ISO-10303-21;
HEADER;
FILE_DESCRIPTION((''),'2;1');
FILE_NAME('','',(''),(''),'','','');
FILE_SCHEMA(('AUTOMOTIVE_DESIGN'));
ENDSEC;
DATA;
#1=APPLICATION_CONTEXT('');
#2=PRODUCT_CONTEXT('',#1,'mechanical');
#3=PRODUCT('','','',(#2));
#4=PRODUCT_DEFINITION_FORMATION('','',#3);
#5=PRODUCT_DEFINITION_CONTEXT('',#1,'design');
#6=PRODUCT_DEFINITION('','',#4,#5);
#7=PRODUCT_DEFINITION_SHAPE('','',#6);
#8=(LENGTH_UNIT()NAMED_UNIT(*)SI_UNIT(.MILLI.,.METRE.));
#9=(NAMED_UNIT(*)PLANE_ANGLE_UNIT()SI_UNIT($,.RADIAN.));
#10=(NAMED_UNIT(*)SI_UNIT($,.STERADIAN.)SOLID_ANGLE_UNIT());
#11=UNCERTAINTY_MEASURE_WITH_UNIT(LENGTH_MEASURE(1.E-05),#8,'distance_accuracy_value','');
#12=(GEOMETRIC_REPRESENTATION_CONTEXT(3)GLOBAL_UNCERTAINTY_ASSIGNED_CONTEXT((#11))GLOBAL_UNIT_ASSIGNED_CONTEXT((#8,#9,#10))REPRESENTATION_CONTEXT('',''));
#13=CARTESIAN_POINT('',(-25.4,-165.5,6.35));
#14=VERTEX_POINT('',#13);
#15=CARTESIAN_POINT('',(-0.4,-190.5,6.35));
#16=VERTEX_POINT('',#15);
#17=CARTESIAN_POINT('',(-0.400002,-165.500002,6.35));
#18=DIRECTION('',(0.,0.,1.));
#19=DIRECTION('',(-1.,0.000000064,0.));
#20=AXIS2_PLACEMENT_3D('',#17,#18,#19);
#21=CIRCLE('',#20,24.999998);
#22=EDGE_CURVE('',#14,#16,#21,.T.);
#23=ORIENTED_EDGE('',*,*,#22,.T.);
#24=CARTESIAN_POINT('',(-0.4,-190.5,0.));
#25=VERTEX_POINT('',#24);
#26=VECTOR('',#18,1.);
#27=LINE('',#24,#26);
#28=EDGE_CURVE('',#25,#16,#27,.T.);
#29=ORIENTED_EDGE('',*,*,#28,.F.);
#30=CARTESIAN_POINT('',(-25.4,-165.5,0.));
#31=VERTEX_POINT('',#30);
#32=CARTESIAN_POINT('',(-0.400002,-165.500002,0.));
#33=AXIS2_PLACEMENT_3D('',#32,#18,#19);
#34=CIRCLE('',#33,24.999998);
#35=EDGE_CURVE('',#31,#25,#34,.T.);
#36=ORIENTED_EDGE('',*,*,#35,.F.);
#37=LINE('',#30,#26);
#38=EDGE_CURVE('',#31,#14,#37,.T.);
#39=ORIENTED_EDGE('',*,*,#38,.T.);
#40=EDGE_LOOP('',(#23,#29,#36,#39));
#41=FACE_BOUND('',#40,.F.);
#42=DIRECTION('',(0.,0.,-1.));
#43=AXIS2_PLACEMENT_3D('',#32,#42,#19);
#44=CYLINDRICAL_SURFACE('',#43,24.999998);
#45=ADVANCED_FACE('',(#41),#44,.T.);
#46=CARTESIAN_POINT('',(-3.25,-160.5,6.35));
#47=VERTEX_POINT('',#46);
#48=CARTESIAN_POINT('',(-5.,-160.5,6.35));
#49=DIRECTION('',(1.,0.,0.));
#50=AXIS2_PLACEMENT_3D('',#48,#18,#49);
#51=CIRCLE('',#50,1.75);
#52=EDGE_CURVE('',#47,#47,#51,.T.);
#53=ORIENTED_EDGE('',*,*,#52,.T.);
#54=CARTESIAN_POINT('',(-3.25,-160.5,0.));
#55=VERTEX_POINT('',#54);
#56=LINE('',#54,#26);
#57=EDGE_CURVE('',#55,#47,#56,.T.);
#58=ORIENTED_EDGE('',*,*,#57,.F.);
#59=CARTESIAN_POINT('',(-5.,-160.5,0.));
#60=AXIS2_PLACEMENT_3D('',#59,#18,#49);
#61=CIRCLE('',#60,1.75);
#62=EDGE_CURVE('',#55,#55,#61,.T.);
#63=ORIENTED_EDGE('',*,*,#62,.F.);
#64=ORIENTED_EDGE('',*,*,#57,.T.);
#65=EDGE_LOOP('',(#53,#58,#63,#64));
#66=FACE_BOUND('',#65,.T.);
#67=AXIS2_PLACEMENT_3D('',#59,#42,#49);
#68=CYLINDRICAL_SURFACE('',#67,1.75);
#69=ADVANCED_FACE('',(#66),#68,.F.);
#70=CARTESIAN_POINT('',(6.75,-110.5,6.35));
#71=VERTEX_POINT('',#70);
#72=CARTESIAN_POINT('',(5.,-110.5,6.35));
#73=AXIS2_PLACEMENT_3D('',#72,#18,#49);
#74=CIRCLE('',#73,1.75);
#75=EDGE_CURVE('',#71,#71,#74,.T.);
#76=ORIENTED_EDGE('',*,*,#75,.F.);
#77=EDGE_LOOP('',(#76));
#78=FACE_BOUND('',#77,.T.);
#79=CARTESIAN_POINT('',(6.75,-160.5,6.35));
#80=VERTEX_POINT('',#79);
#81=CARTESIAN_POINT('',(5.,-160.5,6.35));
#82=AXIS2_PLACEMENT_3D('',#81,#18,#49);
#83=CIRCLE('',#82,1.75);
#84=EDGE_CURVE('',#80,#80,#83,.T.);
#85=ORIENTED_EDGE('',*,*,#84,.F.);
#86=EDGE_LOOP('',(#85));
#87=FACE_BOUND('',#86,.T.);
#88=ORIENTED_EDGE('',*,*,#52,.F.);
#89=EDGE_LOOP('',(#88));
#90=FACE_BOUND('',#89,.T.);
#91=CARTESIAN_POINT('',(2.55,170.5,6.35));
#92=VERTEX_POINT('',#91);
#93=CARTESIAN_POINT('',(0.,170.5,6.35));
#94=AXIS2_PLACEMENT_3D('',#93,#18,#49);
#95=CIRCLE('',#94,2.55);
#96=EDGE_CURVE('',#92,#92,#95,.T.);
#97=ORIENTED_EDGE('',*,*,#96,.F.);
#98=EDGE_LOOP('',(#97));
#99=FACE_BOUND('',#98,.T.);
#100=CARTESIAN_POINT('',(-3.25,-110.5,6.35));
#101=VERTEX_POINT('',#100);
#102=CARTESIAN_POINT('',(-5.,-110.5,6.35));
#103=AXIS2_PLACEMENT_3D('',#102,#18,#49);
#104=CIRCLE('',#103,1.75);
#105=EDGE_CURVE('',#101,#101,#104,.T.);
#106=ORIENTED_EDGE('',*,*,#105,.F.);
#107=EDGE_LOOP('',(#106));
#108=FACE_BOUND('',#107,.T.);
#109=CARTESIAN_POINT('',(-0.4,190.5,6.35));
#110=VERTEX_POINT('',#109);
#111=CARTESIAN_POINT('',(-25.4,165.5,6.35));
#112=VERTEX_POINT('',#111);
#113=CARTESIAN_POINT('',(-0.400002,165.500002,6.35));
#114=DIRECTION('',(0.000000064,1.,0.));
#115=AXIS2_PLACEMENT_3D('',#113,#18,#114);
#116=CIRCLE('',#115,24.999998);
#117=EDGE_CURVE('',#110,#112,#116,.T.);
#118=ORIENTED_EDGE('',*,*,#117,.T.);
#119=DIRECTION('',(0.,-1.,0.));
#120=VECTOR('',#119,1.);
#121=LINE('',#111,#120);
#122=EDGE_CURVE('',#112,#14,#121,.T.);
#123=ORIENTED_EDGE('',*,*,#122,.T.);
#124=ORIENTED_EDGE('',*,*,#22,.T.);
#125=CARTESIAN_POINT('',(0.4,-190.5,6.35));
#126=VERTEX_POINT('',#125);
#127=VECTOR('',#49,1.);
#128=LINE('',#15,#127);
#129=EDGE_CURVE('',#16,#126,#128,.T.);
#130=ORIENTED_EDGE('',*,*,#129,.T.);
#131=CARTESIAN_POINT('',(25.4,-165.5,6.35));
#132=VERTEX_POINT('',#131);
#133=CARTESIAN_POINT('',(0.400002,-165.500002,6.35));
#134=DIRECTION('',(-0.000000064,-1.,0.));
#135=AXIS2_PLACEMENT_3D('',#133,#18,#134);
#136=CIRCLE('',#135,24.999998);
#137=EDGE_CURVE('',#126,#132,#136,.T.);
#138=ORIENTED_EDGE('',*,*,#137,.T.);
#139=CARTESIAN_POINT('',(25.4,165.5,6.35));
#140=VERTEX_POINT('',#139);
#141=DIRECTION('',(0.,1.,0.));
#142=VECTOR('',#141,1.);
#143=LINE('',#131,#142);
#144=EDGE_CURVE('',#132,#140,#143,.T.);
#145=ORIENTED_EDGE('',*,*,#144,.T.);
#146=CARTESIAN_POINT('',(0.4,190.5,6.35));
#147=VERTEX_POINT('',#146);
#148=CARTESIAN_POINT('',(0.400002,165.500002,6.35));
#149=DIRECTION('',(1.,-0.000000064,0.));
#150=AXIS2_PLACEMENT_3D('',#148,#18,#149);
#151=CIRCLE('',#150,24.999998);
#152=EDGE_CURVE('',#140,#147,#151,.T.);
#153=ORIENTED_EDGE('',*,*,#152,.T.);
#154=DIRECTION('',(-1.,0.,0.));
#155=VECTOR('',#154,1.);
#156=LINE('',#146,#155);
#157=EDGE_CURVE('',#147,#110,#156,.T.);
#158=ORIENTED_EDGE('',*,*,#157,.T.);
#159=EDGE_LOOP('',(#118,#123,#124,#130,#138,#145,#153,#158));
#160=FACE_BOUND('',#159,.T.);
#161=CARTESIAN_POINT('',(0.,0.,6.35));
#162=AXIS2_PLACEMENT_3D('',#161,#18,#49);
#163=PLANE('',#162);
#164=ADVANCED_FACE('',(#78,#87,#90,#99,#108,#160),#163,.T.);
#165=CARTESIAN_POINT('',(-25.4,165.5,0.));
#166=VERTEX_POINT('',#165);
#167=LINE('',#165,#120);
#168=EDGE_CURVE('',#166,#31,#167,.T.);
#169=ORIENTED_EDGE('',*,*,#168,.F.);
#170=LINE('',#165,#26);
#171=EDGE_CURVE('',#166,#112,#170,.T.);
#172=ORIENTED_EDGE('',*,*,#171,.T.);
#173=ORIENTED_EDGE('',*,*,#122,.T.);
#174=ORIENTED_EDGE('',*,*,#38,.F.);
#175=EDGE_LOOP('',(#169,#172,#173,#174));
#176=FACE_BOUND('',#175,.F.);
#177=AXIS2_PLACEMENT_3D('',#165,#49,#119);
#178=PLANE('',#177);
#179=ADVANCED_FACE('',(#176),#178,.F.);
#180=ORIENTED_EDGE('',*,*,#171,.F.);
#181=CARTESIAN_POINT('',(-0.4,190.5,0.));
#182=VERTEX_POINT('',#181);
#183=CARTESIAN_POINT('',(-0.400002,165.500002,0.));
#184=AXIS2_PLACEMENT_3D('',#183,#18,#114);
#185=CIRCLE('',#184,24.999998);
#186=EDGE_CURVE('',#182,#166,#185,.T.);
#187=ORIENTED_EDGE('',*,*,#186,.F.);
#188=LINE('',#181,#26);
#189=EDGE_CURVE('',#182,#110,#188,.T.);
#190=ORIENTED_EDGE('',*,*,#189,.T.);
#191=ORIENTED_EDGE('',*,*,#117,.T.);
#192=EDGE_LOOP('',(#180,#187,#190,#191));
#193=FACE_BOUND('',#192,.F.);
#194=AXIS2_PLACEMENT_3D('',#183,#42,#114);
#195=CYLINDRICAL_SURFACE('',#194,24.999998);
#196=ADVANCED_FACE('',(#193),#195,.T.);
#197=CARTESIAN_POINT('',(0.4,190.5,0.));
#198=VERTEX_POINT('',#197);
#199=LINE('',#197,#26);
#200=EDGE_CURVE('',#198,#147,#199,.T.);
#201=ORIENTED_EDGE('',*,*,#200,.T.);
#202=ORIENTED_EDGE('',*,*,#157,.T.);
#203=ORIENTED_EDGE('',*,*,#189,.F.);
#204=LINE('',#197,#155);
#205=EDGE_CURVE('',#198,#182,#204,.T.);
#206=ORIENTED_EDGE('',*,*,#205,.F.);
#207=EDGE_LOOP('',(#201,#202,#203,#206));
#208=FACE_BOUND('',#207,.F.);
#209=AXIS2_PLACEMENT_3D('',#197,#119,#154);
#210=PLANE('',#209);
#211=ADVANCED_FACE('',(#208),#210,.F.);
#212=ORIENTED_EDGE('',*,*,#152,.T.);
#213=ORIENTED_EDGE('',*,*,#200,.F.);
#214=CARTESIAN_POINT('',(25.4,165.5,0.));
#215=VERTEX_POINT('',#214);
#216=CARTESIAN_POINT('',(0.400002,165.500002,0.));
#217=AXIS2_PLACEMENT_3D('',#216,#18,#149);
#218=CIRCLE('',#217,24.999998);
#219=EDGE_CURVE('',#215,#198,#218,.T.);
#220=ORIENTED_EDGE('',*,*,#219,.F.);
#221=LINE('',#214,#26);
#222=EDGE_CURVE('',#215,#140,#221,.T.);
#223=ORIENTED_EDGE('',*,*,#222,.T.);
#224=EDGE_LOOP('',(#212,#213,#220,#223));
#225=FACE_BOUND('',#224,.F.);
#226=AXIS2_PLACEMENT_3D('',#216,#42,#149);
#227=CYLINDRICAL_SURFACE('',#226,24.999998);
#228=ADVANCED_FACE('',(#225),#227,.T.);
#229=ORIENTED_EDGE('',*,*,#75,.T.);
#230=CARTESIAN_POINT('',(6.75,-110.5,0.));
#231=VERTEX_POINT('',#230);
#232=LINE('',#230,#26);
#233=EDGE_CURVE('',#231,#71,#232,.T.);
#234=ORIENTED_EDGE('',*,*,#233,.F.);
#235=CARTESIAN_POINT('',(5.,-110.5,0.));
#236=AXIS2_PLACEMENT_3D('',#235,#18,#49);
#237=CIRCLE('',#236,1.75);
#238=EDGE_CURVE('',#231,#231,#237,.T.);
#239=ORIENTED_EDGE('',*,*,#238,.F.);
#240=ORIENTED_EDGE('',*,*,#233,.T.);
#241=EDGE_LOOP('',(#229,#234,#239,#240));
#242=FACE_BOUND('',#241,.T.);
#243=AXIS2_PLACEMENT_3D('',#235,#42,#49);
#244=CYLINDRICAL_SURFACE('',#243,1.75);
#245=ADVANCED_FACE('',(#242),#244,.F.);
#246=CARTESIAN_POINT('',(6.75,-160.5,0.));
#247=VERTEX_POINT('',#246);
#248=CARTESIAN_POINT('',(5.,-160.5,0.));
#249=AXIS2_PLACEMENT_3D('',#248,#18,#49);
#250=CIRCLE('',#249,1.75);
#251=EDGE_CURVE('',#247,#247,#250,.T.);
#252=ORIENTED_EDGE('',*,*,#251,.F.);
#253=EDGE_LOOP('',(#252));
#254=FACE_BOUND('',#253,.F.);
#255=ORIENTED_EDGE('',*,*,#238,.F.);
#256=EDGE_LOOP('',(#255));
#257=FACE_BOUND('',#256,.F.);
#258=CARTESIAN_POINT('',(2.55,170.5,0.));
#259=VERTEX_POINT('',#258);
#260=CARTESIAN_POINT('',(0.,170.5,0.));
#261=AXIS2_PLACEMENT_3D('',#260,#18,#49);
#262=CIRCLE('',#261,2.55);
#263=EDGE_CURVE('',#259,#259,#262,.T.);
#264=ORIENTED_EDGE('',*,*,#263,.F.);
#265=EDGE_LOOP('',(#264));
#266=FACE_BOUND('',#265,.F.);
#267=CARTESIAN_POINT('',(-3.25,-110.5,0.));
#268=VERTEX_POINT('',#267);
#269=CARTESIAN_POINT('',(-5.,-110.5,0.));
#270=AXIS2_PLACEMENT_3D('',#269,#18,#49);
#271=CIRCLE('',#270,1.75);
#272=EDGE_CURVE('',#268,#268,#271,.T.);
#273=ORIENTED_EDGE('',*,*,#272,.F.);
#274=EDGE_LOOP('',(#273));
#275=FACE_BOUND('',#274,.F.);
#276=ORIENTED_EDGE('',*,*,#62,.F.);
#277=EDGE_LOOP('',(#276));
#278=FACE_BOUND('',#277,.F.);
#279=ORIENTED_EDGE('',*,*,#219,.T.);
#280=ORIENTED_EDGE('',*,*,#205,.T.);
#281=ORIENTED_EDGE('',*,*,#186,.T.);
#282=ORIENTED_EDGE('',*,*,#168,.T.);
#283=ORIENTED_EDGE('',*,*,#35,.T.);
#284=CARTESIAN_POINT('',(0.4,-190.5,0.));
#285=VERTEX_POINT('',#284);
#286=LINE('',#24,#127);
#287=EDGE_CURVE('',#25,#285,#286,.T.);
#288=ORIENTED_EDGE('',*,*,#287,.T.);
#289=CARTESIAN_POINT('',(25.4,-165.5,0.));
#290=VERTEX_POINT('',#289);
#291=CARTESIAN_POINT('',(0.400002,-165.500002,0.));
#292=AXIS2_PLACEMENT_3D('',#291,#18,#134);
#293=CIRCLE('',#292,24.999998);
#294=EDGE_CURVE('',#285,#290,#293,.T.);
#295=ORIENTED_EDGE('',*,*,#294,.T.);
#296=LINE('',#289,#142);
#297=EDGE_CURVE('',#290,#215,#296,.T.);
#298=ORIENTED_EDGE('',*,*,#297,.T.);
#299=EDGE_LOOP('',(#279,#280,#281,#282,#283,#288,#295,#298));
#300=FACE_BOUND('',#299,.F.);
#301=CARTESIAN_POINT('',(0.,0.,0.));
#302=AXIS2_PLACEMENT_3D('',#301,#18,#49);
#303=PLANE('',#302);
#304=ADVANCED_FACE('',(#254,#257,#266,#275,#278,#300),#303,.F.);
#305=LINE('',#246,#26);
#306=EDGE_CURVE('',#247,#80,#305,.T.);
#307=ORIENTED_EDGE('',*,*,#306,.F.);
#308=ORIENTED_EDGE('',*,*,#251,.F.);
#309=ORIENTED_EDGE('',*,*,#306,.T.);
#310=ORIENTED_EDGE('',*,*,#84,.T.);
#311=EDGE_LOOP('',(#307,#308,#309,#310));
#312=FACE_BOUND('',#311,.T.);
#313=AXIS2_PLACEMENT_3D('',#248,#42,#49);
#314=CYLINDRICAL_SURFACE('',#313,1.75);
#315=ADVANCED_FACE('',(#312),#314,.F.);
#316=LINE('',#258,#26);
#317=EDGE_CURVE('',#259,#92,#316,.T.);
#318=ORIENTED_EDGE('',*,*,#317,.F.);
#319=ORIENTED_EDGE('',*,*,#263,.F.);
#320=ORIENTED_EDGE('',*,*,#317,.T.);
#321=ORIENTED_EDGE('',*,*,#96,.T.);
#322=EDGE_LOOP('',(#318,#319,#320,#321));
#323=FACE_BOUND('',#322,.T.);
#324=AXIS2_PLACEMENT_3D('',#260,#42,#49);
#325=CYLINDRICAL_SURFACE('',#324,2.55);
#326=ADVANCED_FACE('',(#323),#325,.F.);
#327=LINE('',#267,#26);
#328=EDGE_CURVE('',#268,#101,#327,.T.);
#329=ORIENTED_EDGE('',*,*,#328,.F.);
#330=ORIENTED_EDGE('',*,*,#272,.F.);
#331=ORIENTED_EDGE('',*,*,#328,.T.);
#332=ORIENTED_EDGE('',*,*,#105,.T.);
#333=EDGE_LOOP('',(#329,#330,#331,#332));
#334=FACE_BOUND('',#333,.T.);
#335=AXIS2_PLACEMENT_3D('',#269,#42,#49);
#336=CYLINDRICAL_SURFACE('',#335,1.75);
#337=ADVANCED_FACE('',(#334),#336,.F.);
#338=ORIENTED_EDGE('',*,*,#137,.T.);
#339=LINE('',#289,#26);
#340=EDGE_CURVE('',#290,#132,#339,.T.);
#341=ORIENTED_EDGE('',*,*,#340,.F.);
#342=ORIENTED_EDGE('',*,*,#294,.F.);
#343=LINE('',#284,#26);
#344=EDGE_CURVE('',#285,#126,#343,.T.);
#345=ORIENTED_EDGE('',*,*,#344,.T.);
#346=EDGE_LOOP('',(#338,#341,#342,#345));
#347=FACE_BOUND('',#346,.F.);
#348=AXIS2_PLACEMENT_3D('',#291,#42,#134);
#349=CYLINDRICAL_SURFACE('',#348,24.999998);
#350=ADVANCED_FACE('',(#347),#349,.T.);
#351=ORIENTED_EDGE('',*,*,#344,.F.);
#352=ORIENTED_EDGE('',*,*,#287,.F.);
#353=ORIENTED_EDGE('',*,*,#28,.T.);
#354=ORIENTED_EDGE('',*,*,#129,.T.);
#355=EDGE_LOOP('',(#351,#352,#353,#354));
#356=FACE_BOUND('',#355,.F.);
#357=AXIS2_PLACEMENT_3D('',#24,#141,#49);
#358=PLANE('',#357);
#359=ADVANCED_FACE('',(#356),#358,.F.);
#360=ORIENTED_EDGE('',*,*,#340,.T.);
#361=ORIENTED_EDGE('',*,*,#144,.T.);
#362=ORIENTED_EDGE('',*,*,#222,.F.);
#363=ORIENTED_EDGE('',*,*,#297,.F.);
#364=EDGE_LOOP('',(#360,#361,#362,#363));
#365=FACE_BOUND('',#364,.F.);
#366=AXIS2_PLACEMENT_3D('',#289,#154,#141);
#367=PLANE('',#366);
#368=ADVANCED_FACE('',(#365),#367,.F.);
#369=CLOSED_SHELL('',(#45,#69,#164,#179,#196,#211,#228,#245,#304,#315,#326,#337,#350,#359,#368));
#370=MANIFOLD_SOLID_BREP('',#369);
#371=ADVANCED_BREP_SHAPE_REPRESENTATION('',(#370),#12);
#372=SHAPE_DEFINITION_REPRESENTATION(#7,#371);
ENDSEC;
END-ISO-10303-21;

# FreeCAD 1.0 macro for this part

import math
import FreeCAD as App
import Part
import Sketcher

V = App.Vector

doc = App.newDocument("Part")
body = doc.addObject("PartDesign::Body", "Body")

# Sketch on XY plane
sketch1 = body.newObject("Sketcher::SketchObject", "Sketch")
sketch1.AttachmentSupport = (doc.getObject("XY_Plane"), [""])
sketch1.MapMode = "FlatFace"
sketch1.addGeometry(Part.ArcOfCircle(Part.Circle(V(0.4, 165.5, 0), V(0, 0, 1), 25), math.radians(0), math.radians(90)), False)
sketch1.addGeometry(Part.LineSegment(V(0.4, 190.5, 0), V(-0.4, 190.5, 0)), False)
sketch1.addGeometry(Part.ArcOfCircle(Part.Circle(V(-0.4, 165.5, 0), V(0, 0, 1), 25), math.radians(90), math.radians(180)), False)
sketch1.addGeometry(Part.LineSegment(V(-25.4, 165.5, 0), V(-25.4, -165.5, 0)), False)
sketch1.addGeometry(Part.ArcOfCircle(Part.Circle(V(-0.4, -165.5, 0), V(0, 0, 1), 25), math.radians(180), math.radians(270)), False)
sketch1.addGeometry(Part.LineSegment(V(-0.4, -190.5, 0), V(0.4, -190.5, 0)), False)
sketch1.addGeometry(Part.ArcOfCircle(Part.Circle(V(0.4, -165.5, 0), V(0, 0, 1), 25), math.radians(-90), math.radians(0)), False)
sketch1.addGeometry(Part.LineSegment(V(25.4, -165.5, 0), V(25.4, 165.5, 0)), False)
sketch1.addGeometry(Part.Circle(V(-5, -160.5, 0), V(0, 0, 1), 1.8), False)
sketch1.addGeometry(Part.Circle(V(-5, -110.5, 0), V(0, 0, 1), 1.8), False)
sketch1.addGeometry(Part.Circle(V(5, -160.5, 0), V(0, 0, 1), 1.8), False)
sketch1.addGeometry(Part.Circle(V(5, -110.5, 0), V(0, 0, 1), 1.8), False)
sketch1.addGeometry(Part.Circle(V(0, 170.5, 0), V(0, 0, 1), 2.5), False)
sketch1.addConstraint(Sketcher.Constraint("Tangent", 0, 2, 1, 1))
sketch1.addConstraint(Sketcher.Constraint("Tangent", 1, 2, 2, 1))
sketch1.addConstraint(Sketcher.Constraint("Tangent", 2, 2, 3, 1))
sketch1.addConstraint(Sketcher.Constraint("Tangent", 3, 2, 4, 1))
sketch1.addConstraint(Sketcher.Constraint("Tangent", 4, 2, 5, 1))
sketch1.addConstraint(Sketcher.Constraint("Tangent", 5, 2, 6, 1))
sketch1.addConstraint(Sketcher.Constraint("Tangent", 6, 2, 7, 1))
sketch1.addConstraint(Sketcher.Constraint("Tangent", 7, 2, 0, 1))
sketch1.addConstraint(Sketcher.Constraint("Horizontal", 1))
sketch1.addConstraint(Sketcher.Constraint("Vertical", 3))
sketch1.addConstraint(Sketcher.Constraint("Horizontal", 5))
sketch1.addConstraint(Sketcher.Constraint("Vertical", 7))
sketch1.addConstraint(Sketcher.Constraint("Equal", 0, 2))
sketch1.addConstraint(Sketcher.Constraint("Equal", 2, 4))
sketch1.addConstraint(Sketcher.Constraint("Equal", 4, 6))
sketch1.addConstraint(Sketcher.Constraint("Equal", 8, 9))
sketch1.addConstraint(Sketcher.Constraint("Equal", 9, 10))
sketch1.addConstraint(Sketcher.Constraint("Equal", 10, 11))
sketch1.addConstraint(Sketcher.Constraint("Symmetric", 0, 3, 4, 3, -1, 1))
sketch1.addConstraint(Sketcher.Constraint("Symmetric", 8, 3, 10, 3, -2))
sketch1.addConstraint(Sketcher.Constraint("Symmetric", 9, 3, 11, 3, -2))
sketch1.addConstraint(Sketcher.Constraint("PointOnObject", 12, 3, -2))
sketch1.addConstraint(Sketcher.Constraint("Vertical", 8, 3, 9, 3))
sketch1.addConstraint(Sketcher.Constraint("Radius", 0, 24.999998))
sketch1.addConstraint(Sketcher.Constraint("Diameter", 8, 3.5))
sketch1.addConstraint(Sketcher.Constraint("Diameter", 12, 5.1))
sketch1.addConstraint(Sketcher.Constraint("DistanceY", 3, 2, 3, 1, 331.0))
sketch1.addConstraint(Sketcher.Constraint("DistanceX", 1, 2, 1, 1, 0.8))
sketch1.addConstraint(Sketcher.Constraint("DistanceX", 8, 3, -1, 1, 5.0))
sketch1.addConstraint(Sketcher.Constraint("DistanceY", 4, 3, 8, 3, 5.000002))
sketch1.addConstraint(Sketcher.Constraint("DistanceY", 8, 3, 9, 3, 50.0))
sketch1.addConstraint(Sketcher.Constraint("DistanceY", 0, 3, 12, 3, 4.999998))
pad1 = body.newObject("PartDesign::Pad", "Pad")
pad1.Profile = sketch1
pad1.Length = 6.35

doc.recompute()
